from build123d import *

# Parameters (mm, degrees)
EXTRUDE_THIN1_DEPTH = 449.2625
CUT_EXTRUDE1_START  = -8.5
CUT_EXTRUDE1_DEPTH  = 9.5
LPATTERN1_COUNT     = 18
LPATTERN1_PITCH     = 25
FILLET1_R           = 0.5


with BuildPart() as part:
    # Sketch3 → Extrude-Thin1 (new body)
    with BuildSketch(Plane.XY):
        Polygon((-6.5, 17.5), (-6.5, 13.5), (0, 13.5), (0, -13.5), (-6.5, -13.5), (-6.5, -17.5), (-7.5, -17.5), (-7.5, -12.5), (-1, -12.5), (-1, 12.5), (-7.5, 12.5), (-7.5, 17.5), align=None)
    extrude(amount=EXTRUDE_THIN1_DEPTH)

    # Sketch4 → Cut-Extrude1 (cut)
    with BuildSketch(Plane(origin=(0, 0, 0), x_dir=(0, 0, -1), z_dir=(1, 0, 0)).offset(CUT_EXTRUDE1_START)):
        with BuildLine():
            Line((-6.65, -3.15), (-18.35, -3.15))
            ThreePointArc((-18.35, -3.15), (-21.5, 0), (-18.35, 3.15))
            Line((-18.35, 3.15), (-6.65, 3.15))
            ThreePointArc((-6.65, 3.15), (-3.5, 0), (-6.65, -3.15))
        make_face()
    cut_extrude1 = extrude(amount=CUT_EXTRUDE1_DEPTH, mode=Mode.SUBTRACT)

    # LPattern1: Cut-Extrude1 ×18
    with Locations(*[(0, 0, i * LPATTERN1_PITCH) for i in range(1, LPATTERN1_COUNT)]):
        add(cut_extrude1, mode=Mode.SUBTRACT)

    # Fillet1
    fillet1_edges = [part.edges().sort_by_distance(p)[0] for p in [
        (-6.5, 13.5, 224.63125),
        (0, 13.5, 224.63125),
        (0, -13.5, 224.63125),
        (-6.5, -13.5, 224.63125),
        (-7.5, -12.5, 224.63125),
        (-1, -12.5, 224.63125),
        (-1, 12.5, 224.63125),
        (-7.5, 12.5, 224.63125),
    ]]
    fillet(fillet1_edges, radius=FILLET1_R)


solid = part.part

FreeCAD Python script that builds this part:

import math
import FreeCAD as App
import Part
import Sketcher
Q = App.Units.Quantity


def edges_at(feature, points):
    """Names of the edges that pass closest to the given points."""
    edges = feature.Shape.Edges
    near = lambda p: min(range(len(edges)), key=lambda i: edges[i].distToShape(Part.Vertex(*p))[0])
    return sorted({f"Edge{near(p) + 1}" for p in points})

doc = App.newDocument("Part")
body = doc.addObject("PartDesign::Body", "Body")

# Sketch on XY plane
sketch1 = body.newObject("Sketcher::SketchObject", "Sketch")
sketch1.AttachmentSupport = (doc.getObject("XY_Plane"), [""])
sketch1.MapMode = "FlatFace"
sketch1.addGeometry([
    Part.LineSegment(App.Vector(-6.5, 13.5, 0), App.Vector(-6.5, 17.5, 0)),  # 0
    Part.LineSegment(App.Vector(-6.5, 17.5, 0), App.Vector(-7.5, 17.5, 0)),  # 1
    Part.LineSegment(App.Vector(-7.5, 17.5, 0), App.Vector(-7.5, 12.5, 0)),  # 2
    Part.LineSegment(App.Vector(-7.5, 12.5, 0), App.Vector(-1, 12.5, 0)),  # 3
    Part.LineSegment(App.Vector(-1, 12.5, 0), App.Vector(-1, -12.5, 0)),  # 4
    Part.LineSegment(App.Vector(-1, -12.5, 0), App.Vector(-7.5, -12.5, 0)),  # 5
    Part.LineSegment(App.Vector(-7.5, -12.5, 0), App.Vector(-7.5, -17.5, 0)),  # 6
    Part.LineSegment(App.Vector(-7.5, -17.5, 0), App.Vector(-6.5, -17.5, 0)),  # 7
    Part.LineSegment(App.Vector(-6.5, -17.5, 0), App.Vector(-6.5, -13.5, 0)),  # 8
    Part.LineSegment(App.Vector(-6.5, -13.5, 0), App.Vector(0, -13.5, 0)),  # 9
    Part.LineSegment(App.Vector(0, -13.5, 0), App.Vector(0, 13.5, 0)),  # 10
    Part.LineSegment(App.Vector(0, 13.5, 0), App.Vector(-6.5, 13.5, 0)),  # 11
], False)
sketch1.addConstraint([
    Sketcher.Constraint("Coincident", 0, 2, 1, 1),
    Sketcher.Constraint("Coincident", 1, 2, 2, 1),
    Sketcher.Constraint("Coincident", 2, 2, 3, 1),
    Sketcher.Constraint("Coincident", 3, 2, 4, 1),
    Sketcher.Constraint("Coincident", 4, 2, 5, 1),
    Sketcher.Constraint("Coincident", 5, 2, 6, 1),
    Sketcher.Constraint("Coincident", 6, 2, 7, 1),
    Sketcher.Constraint("Coincident", 7, 2, 8, 1),
    Sketcher.Constraint("Coincident", 8, 2, 9, 1),
    Sketcher.Constraint("Coincident", 9, 2, 10, 1),
    Sketcher.Constraint("Coincident", 10, 2, 11, 1),
    Sketcher.Constraint("Coincident", 11, 2, 0, 1),
    Sketcher.Constraint("Vertical", 0),
    Sketcher.Constraint("Horizontal", 1),
    Sketcher.Constraint("Vertical", 2),
    Sketcher.Constraint("Horizontal", 3),
    Sketcher.Constraint("Vertical", 4),
    Sketcher.Constraint("Horizontal", 5),
    Sketcher.Constraint("Vertical", 6),
    Sketcher.Constraint("Horizontal", 7),
    Sketcher.Constraint("Vertical", 8),
    Sketcher.Constraint("Horizontal", 9),
    Sketcher.Constraint("Vertical", 10),
    Sketcher.Constraint("Horizontal", 11),
    Sketcher.Constraint("Symmetric", 9, 2, 10, 2, -1, 1),
    Sketcher.Constraint("Symmetric", 2, 2, 5, 2, -1),
    Sketcher.Constraint("Symmetric", 0, 2, 7, 2, -1),
    Sketcher.Constraint("Equal", 5, 9),
    Sketcher.Constraint("DistanceX", 1, 2, 1, 1, Q("1 mm")),
    Sketcher.Constraint("DistanceY", 0, 1, 0, 2, Q("4 mm")),
    Sketcher.Constraint("DistanceY", 2, 2, 2, 1, Q("5 mm")),
    Sketcher.Constraint("DistanceY", 4, 2, 4, 1, Q("25 mm")),
    Sketcher.Constraint("DistanceX", 3, 1, 3, 2, Q("6.5 mm")),
])
pad1 = body.newObject("PartDesign::Pad", "Pad")
pad1.Profile = sketch1
pad1.Length = 449.2625

# Sketch on YZ plane
sketch2 = body.newObject("Sketcher::SketchObject", "Sketch001")
sketch2.AttachmentSupport = (doc.getObject("YZ_Plane"), [""])
sketch2.MapMode = "FlatFace"
sketch2.AttachmentOffset = App.Placement(App.Vector(0, 0, -8.5), App.Rotation())
sketch2.addGeometry([
    Part.LineSegment(App.Vector(-3.1, 18.4, 0), App.Vector(-3.1, 6.7, 0)),
    Part.ArcOfCircle(Part.Circle(App.Vector(0, 6.7, 0), App.Vector(0, 0, 1), 3.1), math.radians(180), math.radians(360)),
    Part.LineSegment(App.Vector(3.1, 6.7, 0), App.Vector(3.1, 18.4, 0)),
    Part.ArcOfCircle(Part.Circle(App.Vector(0, 18.4, 0), App.Vector(0, 0, 1), 3.1), math.radians(0), math.radians(180)),
], False)
sketch2.addConstraint([
    Sketcher.Constraint("Tangent", 0, 2, 1, 1),
    Sketcher.Constraint("Tangent", 1, 2, 2, 1),
    Sketcher.Constraint("Tangent", 2, 2, 3, 1),
    Sketcher.Constraint("Tangent", 3, 2, 0, 1),
    Sketcher.Constraint("Vertical", 0),
    Sketcher.Constraint("Vertical", 2),
    Sketcher.Constraint("PointOnObject", 1, 3, -2),
    Sketcher.Constraint("Radius", 1, Q("3.15 mm")),
    Sketcher.Constraint("DistanceY", 0, 2, 0, 1, Q("11.7 mm")),
    Sketcher.Constraint("DistanceY", -1, 1, 1, 3, Q("6.65 mm")),
])
pocket1 = body.newObject("PartDesign::Pocket", "Pocket")
pocket1.Profile = sketch2
pocket1.Length = 9.5
pocket1.Reversed = True
doc.recompute()

linearpattern = body.newObject("PartDesign::LinearPattern", "LinearPattern")
linearpattern.Originals = [pocket1]
linearpattern.Direction = (doc.getObject("Z_Axis"), [""])
linearpattern.Mode = "offset"
linearpattern.Offset = 25
linearpattern.Occurrences = 18
body.Tip = linearpattern
doc.recompute()

fillet = body.newObject("PartDesign::Fillet", "Fillet")
fillet.Base = (linearpattern, edges_at(linearpattern, [
    (-6.5, 13.5, 224.631),
    (0, 13.5, 224.631),
    (0, -13.5, 224.631),
    (-6.5, -13.5, 224.631),
    (-7.5, -12.5, 224.631),
    (-1, -12.5, 224.631),
    (-1, 12.5, 224.631),
    (-7.5, 12.5, 224.631),
]))
fillet.Radius = 0.5

doc.recompute()
